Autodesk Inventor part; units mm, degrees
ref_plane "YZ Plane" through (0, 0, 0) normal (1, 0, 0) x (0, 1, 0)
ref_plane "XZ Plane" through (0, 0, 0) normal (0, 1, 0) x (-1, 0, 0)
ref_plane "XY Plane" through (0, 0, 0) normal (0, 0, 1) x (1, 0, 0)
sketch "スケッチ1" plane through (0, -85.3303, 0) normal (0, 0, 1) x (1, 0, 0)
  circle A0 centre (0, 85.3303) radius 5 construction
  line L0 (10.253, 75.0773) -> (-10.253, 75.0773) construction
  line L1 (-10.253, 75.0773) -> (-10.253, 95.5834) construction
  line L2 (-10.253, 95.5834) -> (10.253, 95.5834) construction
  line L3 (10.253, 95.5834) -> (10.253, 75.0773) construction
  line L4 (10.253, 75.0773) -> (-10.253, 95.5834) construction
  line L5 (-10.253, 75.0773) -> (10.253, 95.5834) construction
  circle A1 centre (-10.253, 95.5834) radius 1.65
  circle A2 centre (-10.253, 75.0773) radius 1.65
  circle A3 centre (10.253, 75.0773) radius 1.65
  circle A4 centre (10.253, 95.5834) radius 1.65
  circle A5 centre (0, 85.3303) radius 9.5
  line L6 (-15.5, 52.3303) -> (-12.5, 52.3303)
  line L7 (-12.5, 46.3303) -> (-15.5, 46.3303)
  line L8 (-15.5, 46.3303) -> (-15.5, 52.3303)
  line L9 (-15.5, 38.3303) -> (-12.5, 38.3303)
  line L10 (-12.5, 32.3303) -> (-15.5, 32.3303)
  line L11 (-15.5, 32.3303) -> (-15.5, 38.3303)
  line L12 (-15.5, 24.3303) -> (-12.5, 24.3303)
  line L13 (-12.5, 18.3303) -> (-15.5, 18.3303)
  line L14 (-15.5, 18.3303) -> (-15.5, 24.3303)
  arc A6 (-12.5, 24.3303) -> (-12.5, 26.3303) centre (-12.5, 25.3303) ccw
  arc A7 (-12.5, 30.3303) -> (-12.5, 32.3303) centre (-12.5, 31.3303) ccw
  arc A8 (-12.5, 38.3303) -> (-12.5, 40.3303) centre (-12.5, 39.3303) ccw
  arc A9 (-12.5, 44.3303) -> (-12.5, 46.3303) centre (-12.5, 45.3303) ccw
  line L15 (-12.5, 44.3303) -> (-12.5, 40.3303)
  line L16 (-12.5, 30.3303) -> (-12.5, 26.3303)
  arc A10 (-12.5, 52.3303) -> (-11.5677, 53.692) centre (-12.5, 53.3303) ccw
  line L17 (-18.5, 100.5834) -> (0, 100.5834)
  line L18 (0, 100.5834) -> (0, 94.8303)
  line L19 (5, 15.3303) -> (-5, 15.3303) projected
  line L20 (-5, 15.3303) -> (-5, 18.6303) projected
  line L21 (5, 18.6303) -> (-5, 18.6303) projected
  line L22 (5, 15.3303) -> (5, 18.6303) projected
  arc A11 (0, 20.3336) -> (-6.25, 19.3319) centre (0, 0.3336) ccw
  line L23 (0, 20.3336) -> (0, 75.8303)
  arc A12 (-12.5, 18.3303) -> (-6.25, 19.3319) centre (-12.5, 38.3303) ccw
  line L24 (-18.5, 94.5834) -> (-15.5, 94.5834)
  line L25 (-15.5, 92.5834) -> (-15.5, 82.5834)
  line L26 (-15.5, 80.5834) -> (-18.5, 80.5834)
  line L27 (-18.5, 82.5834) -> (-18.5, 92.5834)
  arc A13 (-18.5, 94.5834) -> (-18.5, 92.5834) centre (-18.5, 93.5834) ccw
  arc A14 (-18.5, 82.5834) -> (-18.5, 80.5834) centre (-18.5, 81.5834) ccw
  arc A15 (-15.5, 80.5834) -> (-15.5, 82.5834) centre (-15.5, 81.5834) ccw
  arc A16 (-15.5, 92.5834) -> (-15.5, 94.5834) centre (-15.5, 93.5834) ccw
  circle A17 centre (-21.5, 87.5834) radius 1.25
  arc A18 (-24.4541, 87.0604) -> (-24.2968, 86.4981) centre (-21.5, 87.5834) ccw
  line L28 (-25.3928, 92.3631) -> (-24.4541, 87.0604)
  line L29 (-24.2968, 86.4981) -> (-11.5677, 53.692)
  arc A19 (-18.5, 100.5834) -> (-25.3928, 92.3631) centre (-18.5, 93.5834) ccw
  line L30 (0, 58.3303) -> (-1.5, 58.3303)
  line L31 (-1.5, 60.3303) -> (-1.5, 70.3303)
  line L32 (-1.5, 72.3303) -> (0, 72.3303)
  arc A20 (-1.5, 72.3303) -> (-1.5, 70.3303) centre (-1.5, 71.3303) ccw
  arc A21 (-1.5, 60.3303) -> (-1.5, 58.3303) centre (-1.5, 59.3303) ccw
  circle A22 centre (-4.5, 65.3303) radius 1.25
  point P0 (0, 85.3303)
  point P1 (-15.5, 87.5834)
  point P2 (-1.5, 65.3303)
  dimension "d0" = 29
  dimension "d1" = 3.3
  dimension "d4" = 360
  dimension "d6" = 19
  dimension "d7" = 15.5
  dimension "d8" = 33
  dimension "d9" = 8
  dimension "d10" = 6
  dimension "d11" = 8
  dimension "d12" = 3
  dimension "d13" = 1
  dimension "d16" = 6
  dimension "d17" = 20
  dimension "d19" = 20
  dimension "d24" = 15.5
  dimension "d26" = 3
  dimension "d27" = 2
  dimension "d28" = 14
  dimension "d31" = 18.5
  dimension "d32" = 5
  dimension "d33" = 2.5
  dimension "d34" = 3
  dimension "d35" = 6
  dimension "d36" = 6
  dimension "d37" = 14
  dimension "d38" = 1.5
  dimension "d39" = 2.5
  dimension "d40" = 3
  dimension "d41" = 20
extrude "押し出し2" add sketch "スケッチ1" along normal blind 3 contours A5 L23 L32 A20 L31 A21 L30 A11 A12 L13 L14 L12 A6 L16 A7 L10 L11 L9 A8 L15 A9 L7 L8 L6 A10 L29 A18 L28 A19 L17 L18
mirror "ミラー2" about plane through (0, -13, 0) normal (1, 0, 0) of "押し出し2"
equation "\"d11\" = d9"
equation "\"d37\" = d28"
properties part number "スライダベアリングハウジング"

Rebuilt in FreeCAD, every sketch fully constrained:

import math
import FreeCAD as App
import Part
import Sketcher

V = App.Vector

doc = App.newDocument("Part")
params = doc.addObject("Spreadsheet::Sheet", "Params")
for row, (alias, value) in enumerate([
    ("sketch1_radius", "7 mm"),
    ("sketch1_radius2", "1 mm"),
    ("sketch1_radius3", "1 mm"),
    ("sketch1_radius4", "1 mm"),
    ("sketch1_radius5", "1 mm"),
    ("pad1_length", "3 mm"),
], start=1):
    params.set(f"A{row}", alias)
    params.set(f"B{row}", "=" + value)
    params.setAlias(f"B{row}", alias)

body = doc.addObject("PartDesign::Body", "Body")

# Sketch on XY plane
sketch1 = body.newObject("Sketcher::SketchObject", "Sketch")
sketch1.AttachmentSupport = (doc.getObject("XY_Plane"), [""])
sketch1.MapMode = "FlatFace"
sketch1.addGeometry([
    Part.ArcOfCircle(Part.Circle(V(0, 0, 0), V(0, 0, 1), 9.5), math.radians(90), math.radians(270)),  # 0
    Part.LineSegment(V(0, 9.5, 0), V(0, 15.2531, 0)),  # 1
    Part.LineSegment(V(0, 15.2531, 0), V(-18.5, 15.2531, 0)),  # 2
    Part.ArcOfCircle(Part.Circle(V(-18.5, 8.2531, 0), V(0, 0, 1), 7), math.radians(90), math.radians(190.039606)),  # 3
    Part.LineSegment(V(-25.3928, 7.0328, 0), V(-24.4541, 1.7301, 0)),  # 4
    Part.ArcOfCircle(Part.Circle(V(-21.504611, 2.25205, 0), V(0, 0, 1), 2.995315), math.radians(-169.964676), math.radians(-158.778046)),  # 5
    Part.LineSegment(V(-24.2968, 1.1678, 0), V(-11.5677, -31.6383, 0)),  # 6
    Part.ArcOfCircle(Part.Circle(V(-12.5, -32, 0), V(0, 0, 1), 1), math.radians(-90), math.radians(21.204522)),  # 7
    Part.LineSegment(V(-12.5, -33, 0), V(-15.5, -33, 0)),  # 8
    Part.LineSegment(V(-15.5, -33, 0), V(-15.5, -39, 0)),  # 9
    Part.LineSegment(V(-15.5, -39, 0), V(-12.5, -39, 0)),  # 10
    Part.ArcOfCircle(Part.Circle(V(-12.5, -40, 0), V(0, 0, 1), 1), math.radians(-90), math.radians(90)),  # 11
    Part.LineSegment(V(-12.5, -41, 0), V(-12.5, -45, 0)),  # 12
    Part.ArcOfCircle(Part.Circle(V(-12.5, -46, 0), V(0, 0, 1), 1), math.radians(-90), math.radians(90)),  # 13
    Part.LineSegment(V(-12.5, -47, 0), V(-15.5, -47, 0)),  # 14
    Part.LineSegment(V(-15.5, -47, 0), V(-15.5, -53, 0)),  # 15
    Part.LineSegment(V(-15.5, -53, 0), V(-12.5, -53, 0)),  # 16
    Part.ArcOfCircle(Part.Circle(V(-12.5, -54, 0), V(0, 0, 1), 1), math.radians(-90), math.radians(90)),  # 17
    Part.LineSegment(V(-12.5, -55, 0), V(-12.5, -59, 0)),  # 18
    Part.ArcOfCircle(Part.Circle(V(-12.5, -60, 0), V(0, 0, 1), 1), math.radians(-90), math.radians(90)),  # 19
    Part.LineSegment(V(-12.5, -61, 0), V(-15.5, -61, 0)),  # 20
    Part.LineSegment(V(-15.5, -61, 0), V(-15.5, -67, 0)),  # 21
    Part.LineSegment(V(-15.5, -67, 0), V(-12.5, -67, 0)),  # 22
    Part.ArcOfCircle(Part.Circle(V(-12.500134, -46.998311, 0), V(0, 0, 1), 20.001689), math.radians(-89.999615), math.radians(-71.791229)),  # 23
    Part.ArcOfCircle(Part.Circle(V(-0.000166, -84.99462, 0), V(0, 0, 1), 19.99792), math.radians(89.999525), math.radians(108.211418)),  # 24
    Part.LineSegment(V(0, -64.9967, 0), V(0, -27, 0)),  # 25
    Part.LineSegment(V(0, -27, 0), V(-1.5, -27, 0)),  # 26
    Part.ArcOfCircle(Part.Circle(V(-1.5, -26, 0), V(0, 0, 1), 1), math.radians(90), math.radians(270)),  # 27
    Part.LineSegment(V(-1.5, -25, 0), V(-1.5, -15, 0)),  # 28
    Part.ArcOfCircle(Part.Circle(V(-1.5, -14, 0), V(0, 0, 1), 1), math.radians(90), math.radians(270)),  # 29
    Part.LineSegment(V(-1.5, -13, 0), V(0, -13, 0)),  # 30
    Part.LineSegment(V(0, -13, 0), V(0, -9.5, 0)),  # 31
    Part.Circle(V(-10.253, -10.253, 0), V(0, 0, 1), 1.65),  # 32
    Part.Circle(V(-21.5, 2.2531, 0), V(0, 0, 1), 1.25),  # 33
    Part.ArcOfCircle(Part.Circle(V(-18.5, 8.2531, 0), V(0, 0, 1), 1), math.radians(90), math.radians(270)),  # 34
    Part.LineSegment(V(-18.5, 9.2531, 0), V(-15.5, 9.2531, 0)),  # 35
    Part.ArcOfCircle(Part.Circle(V(-15.5, 8.2531, 0), V(0, 0, 1), 1), math.radians(-90), math.radians(90)),  # 36
    Part.LineSegment(V(-15.5, 7.2531, 0), V(-15.5, -2.7469, 0)),  # 37
    Part.ArcOfCircle(Part.Circle(V(-15.5, -3.7469, 0), V(0, 0, 1), 1), math.radians(-90), math.radians(90)),  # 38
    Part.LineSegment(V(-15.5, -4.7469, 0), V(-18.5, -4.7469, 0)),  # 39
    Part.ArcOfCircle(Part.Circle(V(-18.5, -3.7469, 0), V(0, 0, 1), 1), math.radians(90), math.radians(270)),  # 40
    Part.LineSegment(V(-18.5, -2.7469, 0), V(-18.5, 7.2531, 0)),  # 41
    Part.Circle(V(-10.253, 10.2531, 0), V(0, 0, 1), 1.65),  # 42
    Part.Circle(V(-4.5, -20, 0), V(0, 0, 1), 1.25),  # 43
], False)
sketch1.addConstraint([
    Sketcher.Constraint("Coincident", 0, 1, 1, 1),
    Sketcher.Constraint("Coincident", 1, 2, 2, 1),
    Sketcher.Constraint("Coincident", 2, 2, 3, 1),
    Sketcher.Constraint("Coincident", 3, 2, 4, 1),
    Sketcher.Constraint("Coincident", 4, 2, 5, 1),
    Sketcher.Constraint("Coincident", 5, 2, 6, 1),
    Sketcher.Constraint("Coincident", 6, 2, 7, 2),
    Sketcher.Constraint("Coincident", 7, 1, 8, 1),
    Sketcher.Constraint("Coincident", 8, 2, 9, 1),
    Sketcher.Constraint("Coincident", 9, 2, 10, 1),
    Sketcher.Constraint("Coincident", 10, 2, 11, 2),
    Sketcher.Constraint("Coincident", 11, 1, 12, 1),
    Sketcher.Constraint("Coincident", 12, 2, 13, 2),
    Sketcher.Constraint("Coincident", 13, 1, 14, 1),
    Sketcher.Constraint("Coincident", 14, 2, 15, 1),
    Sketcher.Constraint("Coincident", 15, 2, 16, 1),
    Sketcher.Constraint("Coincident", 16, 2, 17, 2),
    Sketcher.Constraint("Coincident", 17, 1, 18, 1),
    Sketcher.Constraint("Coincident", 18, 2, 19, 2),
    Sketcher.Constraint("Coincident", 19, 1, 20, 1),
    Sketcher.Constraint("Coincident", 20, 2, 21, 1),
    Sketcher.Constraint("Coincident", 21, 2, 22, 1),
    Sketcher.Constraint("Coincident", 22, 2, 23, 1),
    Sketcher.Constraint("Coincident", 23, 2, 24, 2),
    Sketcher.Constraint("Coincident", 24, 1, 25, 1),
    Sketcher.Constraint("Coincident", 25, 2, 26, 1),
    Sketcher.Constraint("Coincident", 26, 2, 27, 2),
    Sketcher.Constraint("Coincident", 27, 1, 28, 1),
    Sketcher.Constraint("Coincident", 28, 2, 29, 2),
    Sketcher.Constraint("Coincident", 29, 1, 30, 1),
    Sketcher.Constraint("Coincident", 30, 2, 31, 1),
    Sketcher.Constraint("Coincident", 31, 2, 0, 2),
    Sketcher.Constraint("Coincident", 34, 1, 35, 1),
    Sketcher.Constraint("Coincident", 35, 2, 36, 2),
    Sketcher.Constraint("Coincident", 36, 1, 37, 1),
    Sketcher.Constraint("Coincident", 37, 2, 38, 2),
    Sketcher.Constraint("Coincident", 38, 1, 39, 1),
    Sketcher.Constraint("Coincident", 39, 2, 40, 2),
    Sketcher.Constraint("Coincident", 40, 1, 41, 1),
    Sketcher.Constraint("Coincident", 41, 2, 34, 2),
    Sketcher.Constraint("Vertical", 1),
    Sketcher.Constraint("Horizontal", 2),
    Sketcher.Constraint("Horizontal", 8),
    Sketcher.Constraint("Vertical", 9),
    Sketcher.Constraint("Horizontal", 10),
    Sketcher.Constraint("Vertical", 12),
    Sketcher.Constraint("Horizontal", 14),
    Sketcher.Constraint("Vertical", 15),
    Sketcher.Constraint("Horizontal", 16),
    Sketcher.Constraint("Vertical", 18),
    Sketcher.Constraint("Horizontal", 20),
    Sketcher.Constraint("Vertical", 21),
    Sketcher.Constraint("Horizontal", 22),
    Sketcher.Constraint("Vertical", 25),
    Sketcher.Constraint("Horizontal", 26),
    Sketcher.Constraint("Vertical", 28),
    Sketcher.Constraint("Horizontal", 30),
    Sketcher.Constraint("Vertical", 31),
    Sketcher.Constraint("Horizontal", 35),
    Sketcher.Constraint("Vertical", 37),
    Sketcher.Constraint("Horizontal", 39),
    Sketcher.Constraint("Vertical", 41),
    Sketcher.Constraint("Coincident", 0, 3, -1, 1),
    Sketcher.Constraint("Coincident", 34, 3, 3, 3),
    Sketcher.Constraint("PointOnObject", 24, 3, -2),
    Sketcher.Constraint("PointOnObject", 0, 1, -2),
    Sketcher.Constraint("PointOnObject", 24, 1, -2),
    Sketcher.Constraint("PointOnObject", 30, 2, -2),
    Sketcher.Constraint("Radius", 3, 7.0),
    Sketcher.Constraint("Radius", 7, 1.0),
    Sketcher.Constraint("Radius", 11, 1.0),
    Sketcher.Constraint("Radius", 13, 1.0),
    Sketcher.Constraint("Radius", 17, 1.0),
    Sketcher.Constraint("Radius", 19, 1.0),
    Sketcher.Constraint("Radius", 27, 1.0),
    Sketcher.Constraint("Radius", 29, 1.0),
    Sketcher.Constraint("Radius", 34, 1.0),
    Sketcher.Constraint("Radius", 36, 1.0),
    Sketcher.Constraint("Radius", 38, 1.0),
    Sketcher.Constraint("Radius", 40, 1.0),
    Sketcher.Constraint("Diameter", 32, 3.3),
    Sketcher.Constraint("Diameter", 33, 2.5),
    Sketcher.Constraint("Diameter", 42, 3.3),
    Sketcher.Constraint("Diameter", 43, 2.5),
    Sketcher.Constraint("Radius", 0, 9.5),
    Sketcher.Constraint("DistanceX", 8, 2, 8, 1, 3.0),
    Sketcher.Constraint("DistanceX", 10, 1, 10, 2, 3.0),
    Sketcher.Constraint("DistanceX", 14, 2, 14, 1, 3.0),
    Sketcher.Constraint("DistanceX", 16, 1, 16, 2, 3.0),
    Sketcher.Constraint("DistanceX", 20, 2, 20, 1, 3.0),
    Sketcher.Constraint("DistanceX", 22, 1, 22, 2, 3.0),
    Sketcher.Constraint("DistanceX", 35, 1, 35, 2, 3.0),
    Sketcher.Constraint("DistanceX", 39, 2, 39, 1, 3.0),
    Sketcher.Constraint("DistanceY", 9, 2, 9, 1, 6.0),
    Sketcher.Constraint("DistanceY", 15, 2, 15, 1, 6.0),
    Sketcher.Constraint("DistanceY", 21, 2, 21, 1, 6.0),
    Sketcher.Constraint("DistanceX", 2, 2, 2, 1, 18.5),
    Sketcher.Constraint("DistanceX", 26, 2, 26, 1, 1.5),
    Sketcher.Constraint("DistanceX", 30, 1, 30, 2, 1.5),
    Sketcher.Constraint("DistanceY", 29, 3, -1, 1, 14.0),
    Sketcher.Constraint("DistanceY", 43, 3, -1, 1, 20.0),
    Sketcher.Constraint("DistanceY", 7, 1, -1, 1, 33.0),
    Sketcher.Constraint("DistanceX", 3, 3, 7, 3, 6.0),
    Sketcher.Constraint("DistanceX", 3, 3, 11, 3, 6.0),
    Sketcher.Constraint("DistanceY", 13, 3, 11, 3, 6.0),
    Sketcher.Constraint("DistanceX", 3, 3, 13, 3, 6.0),
    Sketcher.Constraint("DistanceY", 19, 3, 17, 3, 6.0),
    Sketcher.Constraint("DistanceY", 7, 3, 27, 3, 6.0),
    Sketcher.Constraint("DistanceX", 33, 3, 3, 3, 3.0),
    Sketcher.Constraint("DistanceY", 33, 3, 3, 3, 6.0),
    Sketcher.Constraint("DistanceX", 33, 3, 29, 3, 20.0),
    Sketcher.Constraint("DistanceX", 3, 3, 36, 3, 3.0),
    Sketcher.Constraint("DistanceX", 33, 3, 38, 3, 6.0),
    Sketcher.Constraint("DistanceY", 38, 3, 33, 3, 6.0),
    Sketcher.Constraint("DistanceX", 40, 3, 38, 3, 3.0),
    Sketcher.Constraint("DistanceY", 36, 3, 42, 3, 2.0),
    Sketcher.Constraint("DistanceX", 43, 3, 27, 3, 3.0),
    Sketcher.Constraint("DistanceX", 43, 3, 29, 3, 3.0),
    Sketcher.Constraint("DistanceX", 2, 2, 36, 3, 3.0),
    Sketcher.Constraint("DistanceX", 8, 2, 7, 3, 3.0),
    Sketcher.Constraint("DistanceX", 9, 2, 11, 1, 3.0),
    Sketcher.Constraint("DistanceX", 14, 2, 13, 3, 3.0),
    Sketcher.Constraint("DistanceX", 15, 2, 17, 3, 3.0),
    Sketcher.Constraint("DistanceX", 15, 2, 17, 1, 3.0),
    Sketcher.Constraint("DistanceX", 20, 2, 19, 3, 3.0),
    Sketcher.Constraint("DistanceX", 20, 2, 18, 2, 3.0),
    Sketcher.Constraint("DistanceX", 43, 3, 27, 1, 3.0),
    Sketcher.Constraint("DistanceX", 34, 1, 36, 3, 3.0),
    Sketcher.Constraint("DistanceX", 3, 3, 36, 1, 3.0),
    Sketcher.Constraint("DistanceX", 40, 3, 38, 1, 3.0),
    Sketcher.Constraint("DistanceX", 40, 1, 37, 2, 3.0),
    Sketcher.Constraint("Radius", 24, 19.998),
    Sketcher.Constraint("Radius", 5, 2.9953),
    Sketcher.Constraint("Radius", 23, 20.0017),
    Sketcher.Constraint("DistanceX", 23, 3, 24, 3, 12.5),
    Sketcher.Constraint("DistanceY", 1, 1, 1, 2, 5.753),
    Sketcher.Constraint("DistanceY", -1, 1, 4, 2, 1.73),
    Sketcher.Constraint("DistanceX", 23, 2, -1, 1, 6.25),
    Sketcher.Constraint("Distance", 6, 35.189),
    Sketcher.Constraint("DistanceY", -1, 1, 5, 3, 2.252),
    Sketcher.Constraint("DistanceX", 32, 3, -1, 1, 10.253),
    Sketcher.Constraint("DistanceY", 32, 3, -1, 1, 10.253),
    Sketcher.Constraint("DistanceX", 42, 3, -1, 1, 10.253),
    Sketcher.Constraint("DistanceX", 4, 2, -1, 1, 24.454),
    Sketcher.Constraint("DistanceX", 3, 2, 5, 2, 1.096),
    Sketcher.Constraint("DistanceY", 5, 2, 3, 2, 5.865),
])
sketch1.setExpression("Constraints[68]", "Params.sketch1_radius")
sketch1.setExpression("Constraints[69]", "Params.sketch1_radius2")
sketch1.setExpression("Constraints[70]", "Params.sketch1_radius3")
sketch1.setExpression("Constraints[71]", "Params.sketch1_radius4")
sketch1.setExpression("Constraints[72]", "Params.sketch1_radius5")
pad1 = body.newObject("PartDesign::Pad", "Pad")
pad1.Profile = sketch1
pad1.setExpression("Length", "Params.pad1_length")
doc.recompute()

mirrored = body.newObject("PartDesign::Mirrored", "Mirrored")
mirrored.Originals = [pad1]
mirrored.MirrorPlane = (doc.getObject("YZ_Plane"), [""])
body.Tip = mirrored

doc.recompute()
